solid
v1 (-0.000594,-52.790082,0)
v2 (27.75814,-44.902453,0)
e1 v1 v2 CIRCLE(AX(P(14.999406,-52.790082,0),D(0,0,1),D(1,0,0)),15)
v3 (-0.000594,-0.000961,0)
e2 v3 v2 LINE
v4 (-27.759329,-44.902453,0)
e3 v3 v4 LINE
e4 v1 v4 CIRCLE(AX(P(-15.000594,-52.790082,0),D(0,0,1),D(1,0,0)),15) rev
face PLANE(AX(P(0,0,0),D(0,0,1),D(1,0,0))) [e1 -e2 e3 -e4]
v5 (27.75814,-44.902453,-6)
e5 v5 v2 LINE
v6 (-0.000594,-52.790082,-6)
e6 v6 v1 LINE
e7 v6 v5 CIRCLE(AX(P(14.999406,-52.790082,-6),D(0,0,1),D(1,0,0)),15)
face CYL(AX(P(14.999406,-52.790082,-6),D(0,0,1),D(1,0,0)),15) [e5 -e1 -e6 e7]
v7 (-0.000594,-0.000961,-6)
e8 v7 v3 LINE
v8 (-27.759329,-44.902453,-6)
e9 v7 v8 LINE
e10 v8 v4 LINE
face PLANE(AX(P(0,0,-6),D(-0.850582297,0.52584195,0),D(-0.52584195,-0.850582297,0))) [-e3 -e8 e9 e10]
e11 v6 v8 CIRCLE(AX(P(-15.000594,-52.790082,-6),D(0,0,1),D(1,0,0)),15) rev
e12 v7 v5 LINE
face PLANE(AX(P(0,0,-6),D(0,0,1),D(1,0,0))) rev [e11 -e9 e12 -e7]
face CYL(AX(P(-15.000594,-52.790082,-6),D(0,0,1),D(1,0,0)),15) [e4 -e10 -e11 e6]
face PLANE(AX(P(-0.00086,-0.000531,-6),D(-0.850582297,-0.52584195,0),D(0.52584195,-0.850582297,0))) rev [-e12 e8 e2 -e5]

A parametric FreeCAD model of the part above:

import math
import FreeCAD as App
import Part
import Sketcher

V = App.Vector

doc = App.newDocument("Part")
body = doc.addObject("PartDesign::Body", "Body")

sketch1 = doc.addObject("Sketcher::SketchObject", "Sketch")
body.addObject(sketch1)
sketch1.AttachmentSupport = (doc.XY_Plane, [""])
sketch1.MapMode = "FlatFace"
sketch1.addGeometry([
    Part.LineSegment(V(-28, -45, 0), V(0, 0, 0)),
    Part.LineSegment(V(0, 0, 0), V(28, -45, 0)),
    Part.ArcOfCircle(Part.Circle(V(15, -53, 0), V(0, 0, 1), 15), math.radians(-180), math.radians(32)),
    Part.ArcOfCircle(Part.Circle(V(-15, -53, 0), V(0, 0, 1), 15), math.radians(148), math.radians(360)),
], False)
sketch1.addConstraint([
    Sketcher.Constraint("Coincident", 0, 2, 1, 1),
    Sketcher.Constraint("Tangent", 1, 2, 2, 2),
    Sketcher.Constraint("Tangent", 2, 1, 3, 2),
    Sketcher.Constraint("Tangent", 3, 1, 0, 1),
    Sketcher.Constraint("Equal", 2, 3),
    Sketcher.Constraint("Horizontal", 2, 3, 3, 3),
    Sketcher.Constraint("Horizontal", 1, 2, 3, 1),
    Sketcher.Constraint("Radius", 2, 15.0),
    Sketcher.Constraint("Distance", 0, 52.789121),
    Sketcher.Constraint("DistanceY", 0, 2, -1, 1, 0.000961),
    Sketcher.Constraint("DistanceX", -1, 1, 1, 2, 27.75814),
])
pad1 = doc.addObject("PartDesign::Pad", "Pad")
body.addObject(pad1)
pad1.Profile = sketch1
pad1.Length = 6
pad1.Reversed = True

doc.recompute()
